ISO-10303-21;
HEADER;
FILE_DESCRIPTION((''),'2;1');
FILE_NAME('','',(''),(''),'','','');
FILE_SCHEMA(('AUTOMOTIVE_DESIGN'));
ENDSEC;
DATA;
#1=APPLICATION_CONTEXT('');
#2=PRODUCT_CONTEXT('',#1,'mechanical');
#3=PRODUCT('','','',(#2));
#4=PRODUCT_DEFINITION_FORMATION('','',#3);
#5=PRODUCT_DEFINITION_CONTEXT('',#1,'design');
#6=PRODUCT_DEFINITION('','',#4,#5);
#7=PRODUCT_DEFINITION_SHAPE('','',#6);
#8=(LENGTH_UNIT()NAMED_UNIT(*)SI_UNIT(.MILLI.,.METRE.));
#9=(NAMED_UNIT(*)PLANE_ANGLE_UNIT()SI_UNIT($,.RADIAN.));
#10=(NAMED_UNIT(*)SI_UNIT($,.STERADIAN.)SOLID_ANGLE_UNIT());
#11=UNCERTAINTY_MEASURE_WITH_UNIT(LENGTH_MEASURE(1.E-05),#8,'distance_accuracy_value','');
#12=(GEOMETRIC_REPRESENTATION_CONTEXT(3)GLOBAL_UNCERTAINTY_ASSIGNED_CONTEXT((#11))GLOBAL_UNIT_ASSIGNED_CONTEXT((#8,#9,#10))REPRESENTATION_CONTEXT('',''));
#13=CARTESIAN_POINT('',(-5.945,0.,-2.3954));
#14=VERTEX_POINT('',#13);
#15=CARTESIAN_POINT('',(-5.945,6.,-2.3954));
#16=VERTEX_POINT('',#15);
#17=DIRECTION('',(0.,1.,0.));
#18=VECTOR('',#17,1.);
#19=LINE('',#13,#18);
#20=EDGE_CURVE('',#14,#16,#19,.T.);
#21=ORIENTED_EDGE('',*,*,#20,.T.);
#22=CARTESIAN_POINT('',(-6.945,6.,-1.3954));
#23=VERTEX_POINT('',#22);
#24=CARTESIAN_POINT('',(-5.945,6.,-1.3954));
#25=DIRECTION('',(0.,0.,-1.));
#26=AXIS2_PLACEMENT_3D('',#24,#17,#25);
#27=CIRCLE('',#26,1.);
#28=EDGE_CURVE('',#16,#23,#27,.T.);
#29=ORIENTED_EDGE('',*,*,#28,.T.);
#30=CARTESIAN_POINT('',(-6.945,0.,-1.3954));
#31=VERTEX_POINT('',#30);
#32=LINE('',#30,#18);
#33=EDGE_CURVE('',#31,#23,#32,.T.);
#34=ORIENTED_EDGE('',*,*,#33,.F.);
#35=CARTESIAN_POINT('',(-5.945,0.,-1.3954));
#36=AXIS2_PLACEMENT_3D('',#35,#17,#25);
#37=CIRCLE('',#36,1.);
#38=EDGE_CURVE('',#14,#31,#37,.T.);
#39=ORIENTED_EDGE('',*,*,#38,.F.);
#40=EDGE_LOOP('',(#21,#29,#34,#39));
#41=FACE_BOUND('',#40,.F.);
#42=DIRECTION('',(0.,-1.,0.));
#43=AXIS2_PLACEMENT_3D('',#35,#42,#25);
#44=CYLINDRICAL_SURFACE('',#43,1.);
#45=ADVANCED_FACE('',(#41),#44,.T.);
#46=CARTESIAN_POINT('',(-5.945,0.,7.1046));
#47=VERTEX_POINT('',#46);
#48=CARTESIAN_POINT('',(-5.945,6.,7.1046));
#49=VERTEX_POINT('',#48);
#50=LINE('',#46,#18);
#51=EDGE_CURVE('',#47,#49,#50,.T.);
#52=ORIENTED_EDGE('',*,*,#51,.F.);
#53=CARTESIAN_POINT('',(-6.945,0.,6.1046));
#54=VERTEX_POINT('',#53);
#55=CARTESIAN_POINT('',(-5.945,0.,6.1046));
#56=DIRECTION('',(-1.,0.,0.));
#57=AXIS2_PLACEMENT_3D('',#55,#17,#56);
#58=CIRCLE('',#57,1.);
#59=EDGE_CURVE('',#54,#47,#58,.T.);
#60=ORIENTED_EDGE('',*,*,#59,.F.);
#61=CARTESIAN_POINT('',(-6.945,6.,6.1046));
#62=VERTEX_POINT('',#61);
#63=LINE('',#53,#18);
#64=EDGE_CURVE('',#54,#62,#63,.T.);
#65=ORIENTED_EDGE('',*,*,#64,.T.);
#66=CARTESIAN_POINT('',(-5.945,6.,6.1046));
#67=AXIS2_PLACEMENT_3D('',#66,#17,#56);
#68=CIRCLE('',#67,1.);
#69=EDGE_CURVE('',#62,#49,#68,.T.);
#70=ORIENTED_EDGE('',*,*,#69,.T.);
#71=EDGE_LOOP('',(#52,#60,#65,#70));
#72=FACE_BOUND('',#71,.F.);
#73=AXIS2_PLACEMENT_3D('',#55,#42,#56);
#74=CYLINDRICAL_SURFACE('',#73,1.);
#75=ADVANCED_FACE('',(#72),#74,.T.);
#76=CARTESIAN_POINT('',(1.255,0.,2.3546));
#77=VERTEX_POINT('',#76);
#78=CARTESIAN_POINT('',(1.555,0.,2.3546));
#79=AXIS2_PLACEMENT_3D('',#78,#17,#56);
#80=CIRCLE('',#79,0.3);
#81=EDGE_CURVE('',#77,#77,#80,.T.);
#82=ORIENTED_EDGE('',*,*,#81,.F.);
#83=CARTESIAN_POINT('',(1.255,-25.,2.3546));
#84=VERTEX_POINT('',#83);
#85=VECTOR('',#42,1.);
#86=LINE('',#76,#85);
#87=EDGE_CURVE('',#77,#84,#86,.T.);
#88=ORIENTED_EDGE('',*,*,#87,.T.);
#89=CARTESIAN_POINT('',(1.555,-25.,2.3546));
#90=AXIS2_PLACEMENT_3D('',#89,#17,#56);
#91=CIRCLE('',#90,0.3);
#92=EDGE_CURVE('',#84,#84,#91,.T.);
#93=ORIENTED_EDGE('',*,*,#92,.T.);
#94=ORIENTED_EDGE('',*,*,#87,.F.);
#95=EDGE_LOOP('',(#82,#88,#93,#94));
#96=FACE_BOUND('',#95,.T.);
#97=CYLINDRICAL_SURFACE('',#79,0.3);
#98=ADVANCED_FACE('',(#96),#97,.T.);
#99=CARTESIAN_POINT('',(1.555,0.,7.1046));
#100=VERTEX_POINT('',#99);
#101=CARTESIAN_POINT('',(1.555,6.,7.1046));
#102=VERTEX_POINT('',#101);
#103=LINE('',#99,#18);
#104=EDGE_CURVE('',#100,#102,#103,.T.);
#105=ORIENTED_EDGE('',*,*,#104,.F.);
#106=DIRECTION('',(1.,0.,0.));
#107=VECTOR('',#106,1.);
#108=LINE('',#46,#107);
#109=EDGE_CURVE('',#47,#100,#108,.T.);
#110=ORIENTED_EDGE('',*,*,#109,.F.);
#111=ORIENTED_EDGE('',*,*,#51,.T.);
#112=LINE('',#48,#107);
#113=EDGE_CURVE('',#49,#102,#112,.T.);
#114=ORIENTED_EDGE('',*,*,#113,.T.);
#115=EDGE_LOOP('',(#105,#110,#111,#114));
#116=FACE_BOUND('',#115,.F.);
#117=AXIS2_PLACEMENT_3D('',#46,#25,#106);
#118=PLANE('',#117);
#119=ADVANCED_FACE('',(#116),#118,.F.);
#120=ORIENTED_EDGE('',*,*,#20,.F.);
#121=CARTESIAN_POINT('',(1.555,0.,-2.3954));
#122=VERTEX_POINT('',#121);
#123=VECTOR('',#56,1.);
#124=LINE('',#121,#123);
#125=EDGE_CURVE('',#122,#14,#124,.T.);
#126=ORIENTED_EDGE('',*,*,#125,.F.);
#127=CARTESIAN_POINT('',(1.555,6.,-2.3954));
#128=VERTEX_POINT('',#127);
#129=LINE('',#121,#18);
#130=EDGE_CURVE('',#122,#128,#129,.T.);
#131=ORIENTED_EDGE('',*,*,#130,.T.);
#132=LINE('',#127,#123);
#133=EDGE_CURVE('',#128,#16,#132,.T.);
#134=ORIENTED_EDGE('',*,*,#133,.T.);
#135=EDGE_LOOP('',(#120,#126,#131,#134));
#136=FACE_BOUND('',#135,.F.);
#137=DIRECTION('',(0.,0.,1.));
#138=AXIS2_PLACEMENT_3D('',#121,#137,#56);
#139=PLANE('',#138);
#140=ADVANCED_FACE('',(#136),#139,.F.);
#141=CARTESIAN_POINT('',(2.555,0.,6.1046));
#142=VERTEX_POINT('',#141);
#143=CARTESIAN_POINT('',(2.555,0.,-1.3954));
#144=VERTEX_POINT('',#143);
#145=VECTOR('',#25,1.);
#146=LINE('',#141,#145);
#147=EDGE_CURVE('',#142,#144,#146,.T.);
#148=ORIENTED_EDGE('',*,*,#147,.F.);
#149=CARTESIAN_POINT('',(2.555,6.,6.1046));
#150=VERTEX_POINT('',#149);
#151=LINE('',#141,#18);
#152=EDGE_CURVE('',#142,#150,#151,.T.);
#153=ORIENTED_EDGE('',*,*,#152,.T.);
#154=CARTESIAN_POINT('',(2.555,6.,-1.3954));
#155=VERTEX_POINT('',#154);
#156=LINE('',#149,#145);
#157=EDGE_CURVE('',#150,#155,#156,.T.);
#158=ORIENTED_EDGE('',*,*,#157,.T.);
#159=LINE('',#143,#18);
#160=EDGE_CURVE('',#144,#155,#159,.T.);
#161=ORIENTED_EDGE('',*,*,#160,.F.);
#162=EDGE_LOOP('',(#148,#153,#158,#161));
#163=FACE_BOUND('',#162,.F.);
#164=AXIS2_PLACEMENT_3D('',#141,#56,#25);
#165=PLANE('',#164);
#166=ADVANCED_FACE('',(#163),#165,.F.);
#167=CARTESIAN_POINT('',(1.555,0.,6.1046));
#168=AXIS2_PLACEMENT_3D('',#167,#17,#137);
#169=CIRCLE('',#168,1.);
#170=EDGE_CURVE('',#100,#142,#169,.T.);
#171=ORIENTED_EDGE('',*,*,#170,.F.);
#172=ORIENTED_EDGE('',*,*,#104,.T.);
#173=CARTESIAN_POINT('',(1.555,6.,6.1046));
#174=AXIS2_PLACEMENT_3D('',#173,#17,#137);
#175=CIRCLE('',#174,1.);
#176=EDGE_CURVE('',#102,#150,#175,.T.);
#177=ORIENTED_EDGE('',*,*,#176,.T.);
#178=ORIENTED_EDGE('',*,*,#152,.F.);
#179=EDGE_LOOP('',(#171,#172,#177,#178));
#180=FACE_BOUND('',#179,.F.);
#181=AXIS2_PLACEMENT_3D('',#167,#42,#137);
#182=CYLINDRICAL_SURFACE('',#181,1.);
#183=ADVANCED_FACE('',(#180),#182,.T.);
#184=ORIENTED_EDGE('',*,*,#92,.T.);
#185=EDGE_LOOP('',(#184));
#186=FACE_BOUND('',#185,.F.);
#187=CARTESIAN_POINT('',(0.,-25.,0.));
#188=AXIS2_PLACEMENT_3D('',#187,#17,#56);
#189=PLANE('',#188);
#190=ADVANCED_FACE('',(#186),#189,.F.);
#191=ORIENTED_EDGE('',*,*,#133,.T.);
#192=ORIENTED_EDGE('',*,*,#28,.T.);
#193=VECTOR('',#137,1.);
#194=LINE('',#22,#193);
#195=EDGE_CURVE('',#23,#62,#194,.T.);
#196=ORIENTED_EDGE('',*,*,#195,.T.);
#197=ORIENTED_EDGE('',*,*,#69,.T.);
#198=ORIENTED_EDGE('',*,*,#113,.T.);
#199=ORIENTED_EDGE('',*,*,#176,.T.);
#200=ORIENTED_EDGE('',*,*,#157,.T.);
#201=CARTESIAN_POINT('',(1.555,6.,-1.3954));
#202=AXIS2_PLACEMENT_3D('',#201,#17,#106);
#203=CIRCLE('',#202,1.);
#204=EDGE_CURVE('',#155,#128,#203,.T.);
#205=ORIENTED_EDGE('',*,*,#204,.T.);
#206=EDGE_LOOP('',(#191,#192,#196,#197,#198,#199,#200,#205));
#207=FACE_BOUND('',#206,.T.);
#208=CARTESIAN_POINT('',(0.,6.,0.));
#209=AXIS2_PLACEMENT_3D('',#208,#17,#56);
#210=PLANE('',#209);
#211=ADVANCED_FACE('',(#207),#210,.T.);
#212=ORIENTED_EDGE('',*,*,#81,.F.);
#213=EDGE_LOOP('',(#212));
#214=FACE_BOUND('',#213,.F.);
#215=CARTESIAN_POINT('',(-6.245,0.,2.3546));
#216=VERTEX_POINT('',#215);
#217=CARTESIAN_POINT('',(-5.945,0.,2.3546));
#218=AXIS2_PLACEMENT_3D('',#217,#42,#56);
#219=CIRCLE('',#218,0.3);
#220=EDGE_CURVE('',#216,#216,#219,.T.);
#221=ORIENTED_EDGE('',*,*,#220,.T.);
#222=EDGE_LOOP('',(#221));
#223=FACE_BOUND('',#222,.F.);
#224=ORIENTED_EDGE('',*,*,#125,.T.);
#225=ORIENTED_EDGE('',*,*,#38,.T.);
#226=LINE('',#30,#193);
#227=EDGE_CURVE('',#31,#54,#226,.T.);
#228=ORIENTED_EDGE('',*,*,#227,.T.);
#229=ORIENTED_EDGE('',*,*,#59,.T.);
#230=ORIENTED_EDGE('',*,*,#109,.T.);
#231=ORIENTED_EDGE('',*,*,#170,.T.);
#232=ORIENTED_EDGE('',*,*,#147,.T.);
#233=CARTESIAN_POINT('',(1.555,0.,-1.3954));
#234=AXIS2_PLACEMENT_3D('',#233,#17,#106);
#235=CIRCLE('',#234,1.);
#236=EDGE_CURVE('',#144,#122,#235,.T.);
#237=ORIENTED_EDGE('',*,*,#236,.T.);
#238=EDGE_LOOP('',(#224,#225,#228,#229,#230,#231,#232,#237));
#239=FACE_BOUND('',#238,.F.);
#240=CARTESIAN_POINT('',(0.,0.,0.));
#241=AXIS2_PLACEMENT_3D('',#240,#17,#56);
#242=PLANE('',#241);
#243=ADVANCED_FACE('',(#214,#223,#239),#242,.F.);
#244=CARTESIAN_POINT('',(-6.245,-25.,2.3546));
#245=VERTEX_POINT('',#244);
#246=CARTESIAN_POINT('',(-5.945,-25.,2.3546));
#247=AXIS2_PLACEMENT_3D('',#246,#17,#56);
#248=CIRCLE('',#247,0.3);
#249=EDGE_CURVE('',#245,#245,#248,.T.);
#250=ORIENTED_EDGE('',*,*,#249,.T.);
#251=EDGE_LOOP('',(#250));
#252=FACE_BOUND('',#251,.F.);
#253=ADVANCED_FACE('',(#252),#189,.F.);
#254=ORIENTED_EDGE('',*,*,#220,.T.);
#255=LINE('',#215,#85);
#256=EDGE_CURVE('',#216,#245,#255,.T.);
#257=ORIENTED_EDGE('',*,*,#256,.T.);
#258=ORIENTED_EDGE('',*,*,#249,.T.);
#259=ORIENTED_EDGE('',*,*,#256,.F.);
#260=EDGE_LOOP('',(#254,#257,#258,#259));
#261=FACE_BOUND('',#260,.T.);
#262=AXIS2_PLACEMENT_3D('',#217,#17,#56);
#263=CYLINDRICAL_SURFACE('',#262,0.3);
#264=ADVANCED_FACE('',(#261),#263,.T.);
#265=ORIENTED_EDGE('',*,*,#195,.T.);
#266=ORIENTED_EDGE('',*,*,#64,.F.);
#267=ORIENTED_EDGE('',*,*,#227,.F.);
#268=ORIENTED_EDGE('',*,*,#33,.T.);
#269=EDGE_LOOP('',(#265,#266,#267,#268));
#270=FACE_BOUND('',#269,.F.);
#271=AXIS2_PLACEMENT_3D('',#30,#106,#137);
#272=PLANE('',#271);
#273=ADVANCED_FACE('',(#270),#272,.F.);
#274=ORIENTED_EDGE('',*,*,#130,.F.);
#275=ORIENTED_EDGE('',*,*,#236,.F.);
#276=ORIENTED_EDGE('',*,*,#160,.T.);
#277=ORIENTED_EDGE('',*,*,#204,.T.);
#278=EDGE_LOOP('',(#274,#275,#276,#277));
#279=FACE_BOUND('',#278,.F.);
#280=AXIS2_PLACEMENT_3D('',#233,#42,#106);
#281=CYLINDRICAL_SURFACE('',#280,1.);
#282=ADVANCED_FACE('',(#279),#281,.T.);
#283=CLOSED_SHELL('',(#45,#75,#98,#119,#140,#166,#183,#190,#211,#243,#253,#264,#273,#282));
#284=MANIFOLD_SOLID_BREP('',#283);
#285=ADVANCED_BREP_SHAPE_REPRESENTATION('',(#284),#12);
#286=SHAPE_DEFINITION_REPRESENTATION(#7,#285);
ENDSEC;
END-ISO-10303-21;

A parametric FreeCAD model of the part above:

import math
import FreeCAD as App
import Part
import Sketcher

V = App.Vector

doc = App.newDocument("Part")
body = doc.addObject("PartDesign::Body", "Body")

# Sketch on XZ plane
sketch1 = body.newObject("Sketcher::SketchObject", "Sketch")
sketch1.AttachmentSupport = (doc.getObject("XZ_Plane"), [""])
sketch1.MapMode = "FlatFace"
sketch1.addGeometry(Part.ArcOfCircle(Part.Circle(V(-5.9, 6.1, 0), V(0, 0, 1), 1), math.radians(90), math.radians(180)), False)
sketch1.addGeometry(Part.LineSegment(V(-5.9, 7.1, 0), V(1.6, 7.1, 0)), False)
sketch1.addGeometry(Part.ArcOfCircle(Part.Circle(V(1.6, 6.1, 0), V(0, 0, 1), 1), math.radians(0), math.radians(90)), False)
sketch1.addGeometry(Part.LineSegment(V(2.6, 6.1, 0), V(2.6, -1.4, 0)), False)
sketch1.addGeometry(Part.ArcOfCircle(Part.Circle(V(1.6, -1.4, 0), V(0, 0, 1), 1), math.radians(-90), math.radians(0)), False)
sketch1.addGeometry(Part.LineSegment(V(1.6, -2.4, 0), V(-5.9, -2.4, 0)), False)
sketch1.addGeometry(Part.ArcOfCircle(Part.Circle(V(-5.9, -1.4, 0), V(0, 0, 1), 1), math.radians(180), math.radians(270)), False)
sketch1.addGeometry(Part.LineSegment(V(-6.9, -1.4, 0), V(-6.9, 6.1, 0)), False)
sketch1.addConstraint(Sketcher.Constraint("Tangent", 0, 1, 1, 1))
sketch1.addConstraint(Sketcher.Constraint("Tangent", 1, 2, 2, 2))
sketch1.addConstraint(Sketcher.Constraint("Tangent", 2, 1, 3, 1))
sketch1.addConstraint(Sketcher.Constraint("Tangent", 3, 2, 4, 2))
sketch1.addConstraint(Sketcher.Constraint("Tangent", 4, 1, 5, 1))
sketch1.addConstraint(Sketcher.Constraint("Tangent", 5, 2, 6, 2))
sketch1.addConstraint(Sketcher.Constraint("Tangent", 6, 1, 7, 1))
sketch1.addConstraint(Sketcher.Constraint("Tangent", 7, 2, 0, 2))
sketch1.addConstraint(Sketcher.Constraint("Horizontal", 1))
sketch1.addConstraint(Sketcher.Constraint("Vertical", 3))
sketch1.addConstraint(Sketcher.Constraint("Horizontal", 5))
sketch1.addConstraint(Sketcher.Constraint("Vertical", 7))
sketch1.addConstraint(Sketcher.Constraint("Equal", 0, 2))
sketch1.addConstraint(Sketcher.Constraint("Equal", 2, 4))
sketch1.addConstraint(Sketcher.Constraint("Equal", 4, 6))
sketch1.addConstraint(Sketcher.Constraint("Equal", 5, 3))
sketch1.addConstraint(Sketcher.Constraint("Radius", 0, 1.0))
sketch1.addConstraint(Sketcher.Constraint("DistanceX", 1, 1, 1, 2, 7.5))
sketch1.addConstraint(Sketcher.Constraint("DistanceX", 0, 3, -1, 1, 5.945))
sketch1.addConstraint(Sketcher.Constraint("DistanceY", -1, 1, 0, 3, 6.1046))
pad1 = body.newObject("PartDesign::Pad", "Pad")
pad1.Profile = sketch1
pad1.Length = 6
pad1.Reversed = True

# Sketch on XZ plane
sketch2 = body.newObject("Sketcher::SketchObject", "Sketch001")
sketch2.AttachmentSupport = (doc.getObject("XZ_Plane"), [""])
sketch2.MapMode = "FlatFace"
sketch2.addGeometry(Part.Circle(V(-5.95, 2.35, 0), V(0, 0, 1), 0.3), False)
sketch2.addGeometry(Part.Circle(V(1.55, 2.35, 0), V(0, 0, 1), 0.3), False)
sketch2.addConstraint(Sketcher.Constraint("Equal", 0, 1))
sketch2.addConstraint(Sketcher.Constraint("Horizontal", 0, 3, 1, 3))
sketch2.addConstraint(Sketcher.Constraint("Diameter", 0, 0.6))
sketch2.addConstraint(Sketcher.Constraint("DistanceX", 0, 3, 1, 3, 7.5))
sketch2.addConstraint(Sketcher.Constraint("DistanceX", 0, 3, -1, 1, 5.945))
sketch2.addConstraint(Sketcher.Constraint("DistanceY", -1, 1, 0, 3, 2.3546))
pad2 = body.newObject("PartDesign::Pad", "Pad001")
pad2.Profile = sketch2
pad2.Length = 25

doc.recompute()
